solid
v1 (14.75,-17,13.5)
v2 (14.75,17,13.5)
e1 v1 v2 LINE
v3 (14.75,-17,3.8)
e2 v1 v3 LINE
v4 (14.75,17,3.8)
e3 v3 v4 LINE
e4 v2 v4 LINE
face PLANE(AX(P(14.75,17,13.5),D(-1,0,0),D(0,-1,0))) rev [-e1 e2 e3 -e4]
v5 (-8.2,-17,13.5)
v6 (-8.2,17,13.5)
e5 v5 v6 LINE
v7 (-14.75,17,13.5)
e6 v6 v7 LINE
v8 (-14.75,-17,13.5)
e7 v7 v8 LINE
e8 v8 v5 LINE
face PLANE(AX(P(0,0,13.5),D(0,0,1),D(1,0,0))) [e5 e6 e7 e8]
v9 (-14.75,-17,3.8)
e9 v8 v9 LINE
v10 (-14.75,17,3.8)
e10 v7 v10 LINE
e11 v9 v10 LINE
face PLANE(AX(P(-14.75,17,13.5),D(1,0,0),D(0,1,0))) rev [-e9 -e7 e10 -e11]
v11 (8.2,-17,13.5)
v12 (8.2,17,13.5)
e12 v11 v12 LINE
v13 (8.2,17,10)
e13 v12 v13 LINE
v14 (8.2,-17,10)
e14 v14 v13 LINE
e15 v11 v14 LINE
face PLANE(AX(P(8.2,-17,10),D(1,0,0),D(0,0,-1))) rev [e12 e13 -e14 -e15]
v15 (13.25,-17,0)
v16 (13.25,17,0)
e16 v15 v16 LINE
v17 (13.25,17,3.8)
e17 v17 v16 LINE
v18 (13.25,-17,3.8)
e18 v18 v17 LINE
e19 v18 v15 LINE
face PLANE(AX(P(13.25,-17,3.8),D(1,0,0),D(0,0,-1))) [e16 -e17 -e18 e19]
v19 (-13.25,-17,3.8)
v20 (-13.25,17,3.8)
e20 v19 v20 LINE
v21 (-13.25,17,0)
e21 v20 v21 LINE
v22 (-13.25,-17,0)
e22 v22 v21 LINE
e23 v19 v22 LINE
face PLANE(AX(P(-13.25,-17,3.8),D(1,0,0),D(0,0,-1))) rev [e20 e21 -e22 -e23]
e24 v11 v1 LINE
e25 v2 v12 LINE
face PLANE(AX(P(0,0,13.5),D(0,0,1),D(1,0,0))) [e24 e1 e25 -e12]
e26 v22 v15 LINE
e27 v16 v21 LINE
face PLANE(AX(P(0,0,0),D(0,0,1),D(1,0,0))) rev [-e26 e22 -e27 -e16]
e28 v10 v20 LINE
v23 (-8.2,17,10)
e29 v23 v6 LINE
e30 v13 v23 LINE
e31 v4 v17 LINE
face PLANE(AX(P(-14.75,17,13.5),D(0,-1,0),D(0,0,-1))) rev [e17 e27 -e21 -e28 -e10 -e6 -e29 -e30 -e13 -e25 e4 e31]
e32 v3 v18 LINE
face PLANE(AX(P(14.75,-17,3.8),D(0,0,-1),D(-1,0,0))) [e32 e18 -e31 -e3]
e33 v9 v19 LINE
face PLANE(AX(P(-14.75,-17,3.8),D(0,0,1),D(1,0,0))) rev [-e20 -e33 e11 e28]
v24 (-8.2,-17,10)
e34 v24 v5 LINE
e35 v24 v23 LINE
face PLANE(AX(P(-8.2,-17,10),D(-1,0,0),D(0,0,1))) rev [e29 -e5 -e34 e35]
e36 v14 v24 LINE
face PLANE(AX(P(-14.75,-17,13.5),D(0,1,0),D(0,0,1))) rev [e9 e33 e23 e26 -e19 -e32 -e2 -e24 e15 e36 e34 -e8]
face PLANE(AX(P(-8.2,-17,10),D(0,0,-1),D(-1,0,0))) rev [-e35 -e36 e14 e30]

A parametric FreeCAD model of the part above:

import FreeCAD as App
import Part
import Sketcher
from FreeCAD import Vector
Q = App.Units.Quantity

doc = App.newDocument("Part")
body = doc.addObject("PartDesign::Body", "Body")

# Sketch on XY plane
sketch1 = body.newObject("Sketcher::SketchObject", "Sketch")
sketch1.AttachmentSupport = (doc.getObject("XY_Plane"), [""])
sketch1.MapMode = "FlatFace"
sketch1.addGeometry(Part.LineSegment(Vector(-14.75, 17, 0), Vector(-14.75, -17, 0)), False)
sketch1.addGeometry(Part.LineSegment(Vector(-14.75, -17, 0), Vector(14.75, -17, 0)), False)
sketch1.addGeometry(Part.LineSegment(Vector(14.75, -17, 0), Vector(14.75, 17, 0)), False)
sketch1.addGeometry(Part.LineSegment(Vector(14.75, 17, 0), Vector(-14.75, 17, 0)), False)
sketch1.addConstraint(Sketcher.Constraint("Coincident", 0, 2, 1, 1))
sketch1.addConstraint(Sketcher.Constraint("Coincident", 1, 2, 2, 1))
sketch1.addConstraint(Sketcher.Constraint("Coincident", 2, 2, 3, 1))
sketch1.addConstraint(Sketcher.Constraint("Coincident", 3, 2, 0, 1))
sketch1.addConstraint(Sketcher.Constraint("Vertical", 0))
sketch1.addConstraint(Sketcher.Constraint("Horizontal", 1))
sketch1.addConstraint(Sketcher.Constraint("Vertical", 2))
sketch1.addConstraint(Sketcher.Constraint("Horizontal", 3))
sketch1.addConstraint(Sketcher.Constraint("Symmetric", 0, 2, 2, 2, -1, 1))
sketch1.addConstraint(Sketcher.Constraint("DistanceY", 0, 2, 0, 1, Q("34 mm")))
sketch1.addConstraint(Sketcher.Constraint("DistanceX", 1, 1, 1, 2, Q("29.5 mm")))
pad1 = body.newObject("PartDesign::Pad", "Pad")
pad1.Profile = sketch1
pad1.Length = 13.5

# Sketch on XZ plane
sketch2 = body.newObject("Sketcher::SketchObject", "Sketch001")
sketch2.AttachmentSupport = (doc.getObject("XZ_Plane"), [""])
sketch2.MapMode = "FlatFace"
sketch2.AttachmentOffset = App.Placement(Vector(0, 0, -17), App.Rotation())
sketch2.addGeometry(Part.LineSegment(Vector(-14.75, 0, 0), Vector(-14.75, 3.8, 0)), False)
sketch2.addGeometry(Part.LineSegment(Vector(-14.75, 3.8, 0), Vector(-13.25, 3.8, 0)), False)
sketch2.addGeometry(Part.LineSegment(Vector(-13.25, 3.8, 0), Vector(-13.25, 0, 0)), False)
sketch2.addGeometry(Part.LineSegment(Vector(-13.25, 0, 0), Vector(-14.75, 0, 0)), False)
sketch2.addGeometry(Part.LineSegment(Vector(-8.2, 10, 0), Vector(-8.2, 13.5, 0)), False)
sketch2.addGeometry(Part.LineSegment(Vector(-8.2, 13.5, 0), Vector(8.2, 13.5, 0)), False)
sketch2.addGeometry(Part.LineSegment(Vector(8.2, 13.5, 0), Vector(8.2, 10, 0)), False)
sketch2.addGeometry(Part.LineSegment(Vector(8.2, 10, 0), Vector(-8.2, 10, 0)), False)
sketch2.addConstraint(Sketcher.Constraint("Coincident", 0, 2, 1, 1))
sketch2.addConstraint(Sketcher.Constraint("Coincident", 1, 2, 2, 1))
sketch2.addConstraint(Sketcher.Constraint("Coincident", 2, 2, 3, 1))
sketch2.addConstraint(Sketcher.Constraint("Coincident", 3, 2, 0, 1))
sketch2.addConstraint(Sketcher.Constraint("Coincident", 4, 2, 5, 1))
sketch2.addConstraint(Sketcher.Constraint("Coincident", 5, 2, 6, 1))
sketch2.addConstraint(Sketcher.Constraint("Coincident", 6, 2, 7, 1))
sketch2.addConstraint(Sketcher.Constraint("Coincident", 7, 2, 4, 1))
sketch2.addConstraint(Sketcher.Constraint("Vertical", 0))
sketch2.addConstraint(Sketcher.Constraint("Horizontal", 1))
sketch2.addConstraint(Sketcher.Constraint("Vertical", 2))
sketch2.addConstraint(Sketcher.Constraint("Horizontal", 3))
sketch2.addConstraint(Sketcher.Constraint("Vertical", 4))
sketch2.addConstraint(Sketcher.Constraint("Horizontal", 5))
sketch2.addConstraint(Sketcher.Constraint("Vertical", 6))
sketch2.addConstraint(Sketcher.Constraint("Horizontal", 7))
sketch2.addConstraint(Sketcher.Constraint("PointOnObject", 2, 2, -1))
sketch2.addConstraint(Sketcher.Constraint("DistanceX", 1, 1, 1, 2, Q("1.5 mm")))
sketch2.addConstraint(Sketcher.Constraint("DistanceX", 5, 1, 5, 2, Q("16.4 mm")))
sketch2.addConstraint(Sketcher.Constraint("DistanceY", 0, 1, 0, 2, Q("3.8 mm")))
sketch2.addConstraint(Sketcher.Constraint("DistanceY", 4, 1, 4, 2, Q("3.5 mm")))
sketch2.addConstraint(Sketcher.Constraint("DistanceY", -1, 1, 6, 2, Q("10 mm")))
sketch2.addConstraint(Sketcher.Constraint("DistanceX", 4, 2, -1, 1, Q("8.2 mm")))
sketch2.addConstraint(Sketcher.Constraint("DistanceX", 0, 2, -1, 1, Q("14.75 mm")))
pocket1 = body.newObject("PartDesign::Pocket", "Pocket")
pocket1.Profile = sketch2
pocket1.Type = "ThroughAll"
pocket1.Reversed = True
doc.recompute()

mirrored = body.newObject("PartDesign::Mirrored", "Mirrored")
mirrored.Originals = [pocket1]
mirrored.MirrorPlane = (doc.getObject("YZ_Plane"), [""])
body.Tip = mirrored

doc.recompute()
